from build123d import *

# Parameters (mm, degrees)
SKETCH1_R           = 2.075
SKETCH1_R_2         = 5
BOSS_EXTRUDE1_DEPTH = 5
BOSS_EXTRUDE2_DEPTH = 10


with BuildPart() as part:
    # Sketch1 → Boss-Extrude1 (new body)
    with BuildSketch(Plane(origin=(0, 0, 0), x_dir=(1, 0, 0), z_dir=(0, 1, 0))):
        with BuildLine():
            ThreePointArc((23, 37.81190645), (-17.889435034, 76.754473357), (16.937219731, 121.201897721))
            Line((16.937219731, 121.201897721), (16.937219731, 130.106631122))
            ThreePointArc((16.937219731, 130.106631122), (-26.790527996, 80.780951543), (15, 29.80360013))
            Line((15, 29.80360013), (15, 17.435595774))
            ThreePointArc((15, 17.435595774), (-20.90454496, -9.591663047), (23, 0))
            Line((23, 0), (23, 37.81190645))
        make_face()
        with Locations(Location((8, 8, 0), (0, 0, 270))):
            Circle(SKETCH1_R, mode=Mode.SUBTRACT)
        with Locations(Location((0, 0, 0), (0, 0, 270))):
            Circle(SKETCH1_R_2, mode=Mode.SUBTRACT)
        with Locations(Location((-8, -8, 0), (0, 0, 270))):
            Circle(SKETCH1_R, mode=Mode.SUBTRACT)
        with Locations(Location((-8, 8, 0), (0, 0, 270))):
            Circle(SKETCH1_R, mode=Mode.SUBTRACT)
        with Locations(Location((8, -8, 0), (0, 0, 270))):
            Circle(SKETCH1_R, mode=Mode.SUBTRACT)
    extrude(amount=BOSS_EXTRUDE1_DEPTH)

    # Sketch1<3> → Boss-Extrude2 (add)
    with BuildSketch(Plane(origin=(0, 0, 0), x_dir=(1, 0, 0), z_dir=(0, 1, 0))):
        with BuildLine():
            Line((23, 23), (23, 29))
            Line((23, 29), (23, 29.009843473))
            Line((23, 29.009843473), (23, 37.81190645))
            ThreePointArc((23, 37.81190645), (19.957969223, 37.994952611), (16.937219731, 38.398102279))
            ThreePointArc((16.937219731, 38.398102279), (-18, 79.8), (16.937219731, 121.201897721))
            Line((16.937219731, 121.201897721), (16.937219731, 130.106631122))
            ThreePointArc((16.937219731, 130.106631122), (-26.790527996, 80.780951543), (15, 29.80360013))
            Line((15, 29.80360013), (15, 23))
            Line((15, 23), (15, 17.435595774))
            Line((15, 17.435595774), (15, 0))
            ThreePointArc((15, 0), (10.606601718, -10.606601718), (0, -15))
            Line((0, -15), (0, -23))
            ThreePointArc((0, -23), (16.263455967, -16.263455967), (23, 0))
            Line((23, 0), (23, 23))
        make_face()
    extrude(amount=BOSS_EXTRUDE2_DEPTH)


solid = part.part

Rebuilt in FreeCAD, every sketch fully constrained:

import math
import FreeCAD as App
import Part
import Sketcher
from FreeCAD import Vector

doc = App.newDocument("Part")
body = doc.addObject("PartDesign::Body", "Body")

# Sketch on XZ plane
sketch1 = doc.addObject("Sketcher::SketchObject", "Sketch")
body.addObject(sketch1)
sketch1.AttachmentSupport = (doc.XZ_Plane, [""])
sketch1.MapMode = "FlatFace"
sketch1.addGeometry([
    Part.ArcOfCircle(Part.Circle(Vector(24, -79.8, 0), Vector(0, 0, 1), 42), math.radians(91.364314), math.radians(260.319062)),  # 0
    Part.LineSegment(Vector(16.93722, -121.201898, 0), Vector(16.93722, -130.106631, 0)),  # 1
    Part.ArcOfCircle(Part.Circle(Vector(24, -79.8, 0), Vector(0, 0, 1), 50.8), math.radians(100.204693), math.radians(262.008215)),  # 2
    Part.LineSegment(Vector(15, -29.8036, 0), Vector(15, -17.435596, 0)),  # 3
    Part.ArcOfCircle(Part.Circle(Vector(0, 0, 0), Vector(0, 0, 1), 23), math.radians(0), math.radians(310.705707)),  # 4
    Part.LineSegment(Vector(23, 0, 0), Vector(23, -37.811906, 0)),  # 5
    Part.Circle(Vector(-8, 8, 0), Vector(0, 0, 1), 2.075),  # 6
    Part.Circle(Vector(8, 8, 0), Vector(0, 0, 1), 2.075),  # 7
    Part.Circle(Vector(0, 0, 0), Vector(0, 0, 1), 5),  # 8
    Part.Circle(Vector(-8, -8, 0), Vector(0, 0, 1), 2.075),  # 9
    Part.Circle(Vector(8, -8, 0), Vector(0, 0, 1), 2.075),  # 10
], False)
sketch1.addConstraint([
    Sketcher.Constraint("Coincident", 0, 2, 1, 1),
    Sketcher.Constraint("Coincident", 1, 2, 2, 2),
    Sketcher.Constraint("Coincident", 2, 1, 3, 1),
    Sketcher.Constraint("Coincident", 3, 2, 4, 2),
    Sketcher.Constraint("Tangent", 4, 1, 5, 1),
    Sketcher.Constraint("Coincident", 5, 2, 0, 1),
    Sketcher.Constraint("Vertical", 1),
    Sketcher.Constraint("Vertical", 3),
    Sketcher.Constraint("Vertical", 5),
    Sketcher.Constraint("Coincident", 4, 3, -1, 1),
    Sketcher.Constraint("Coincident", 8, 3, -1, 1),
    Sketcher.Constraint("Coincident", 2, 3, 0, 3),
    Sketcher.Constraint("Equal", 6, 7),
    Sketcher.Constraint("Equal", 7, 9),
    Sketcher.Constraint("Equal", 9, 10),
    Sketcher.Constraint("Symmetric", 7, 3, 9, 3, -1, 1),
    Sketcher.Constraint("Symmetric", 6, 3, 10, 3, -1, 1),
    Sketcher.Constraint("Symmetric", 6, 3, 7, 3, -2),
    Sketcher.Constraint("Diameter", 8, 10.0),
    Sketcher.Constraint("Radius", 0, 42.0),
    Sketcher.Constraint("Radius", 4, 23.0),
    Sketcher.Constraint("Radius", 2, 50.8),
    Sketcher.Constraint("Diameter", 6, 4.15),
    Sketcher.Constraint("DistanceX", -1, 1, 0, 3, 24.0),
    Sketcher.Constraint("DistanceX", 6, 3, -1, 1, 8.0),
    Sketcher.Constraint("DistanceY", -1, 1, 6, 3, 8.0),
    Sketcher.Constraint("DistanceX", -1, 1, 2, 1, 15.0),
    Sketcher.Constraint("DistanceY", 0, 3, -1, 1, 79.8),
    Sketcher.Constraint("DistanceY", 1, 2, 1, 1, 8.904733),
])
pad1 = doc.addObject("PartDesign::Pad", "Pad")
body.addObject(pad1)
pad1.Profile = sketch1
pad1.Length = 5
pad1.Reversed = True

# Sketch on XZ plane
sketch2 = doc.addObject("Sketcher::SketchObject", "Sketch001")
body.addObject(sketch2)
sketch2.AttachmentSupport = (doc.XZ_Plane, [""])
sketch2.MapMode = "FlatFace"
sketch2.addGeometry([
    Part.ArcOfCircle(Part.Circle(Vector(24, -79.8, 0), Vector(0, 0, 1), 42), math.radians(91.364314), math.radians(99.680938)),  # 0
    Part.ArcOfCircle(Part.Circle(Vector(24, -79.8, 0), Vector(0, 0, 1), 42), math.radians(99.680938), math.radians(260.319062)),  # 1
    Part.LineSegment(Vector(16.93722, -121.201898, 0), Vector(16.93722, -130.106631, 0)),  # 2
    Part.ArcOfCircle(Part.Circle(Vector(24, -79.8, 0), Vector(0, 0, 1), 50.8), math.radians(100.204693), math.radians(262.008215)),  # 3
    Part.LineSegment(Vector(15, -29.8036, 0), Vector(15, 0, 0)),  # 4
    Part.ArcOfCircle(Part.Circle(Vector(0, 0, 0), Vector(0, 0, 1), 15), math.radians(0), math.radians(90)),  # 5
    Part.LineSegment(Vector(0, 15, 0), Vector(0, 23, 0)),  # 6
    Part.ArcOfCircle(Part.Circle(Vector(0, 0, 0), Vector(0, 0, 1), 23), math.radians(0), math.radians(90)),  # 7
    Part.LineSegment(Vector(23, 0, 0), Vector(23, -37.811906, 0)),  # 8
], False)
sketch2.addConstraint([
    Sketcher.Constraint("Tangent", 0, 2, 1, 1),
    Sketcher.Constraint("Coincident", 1, 2, 2, 1),
    Sketcher.Constraint("Coincident", 2, 2, 3, 2),
    Sketcher.Constraint("Coincident", 3, 1, 4, 1),
    Sketcher.Constraint("Tangent", 4, 2, 5, 1),
    Sketcher.Constraint("Coincident", 5, 2, 6, 1),
    Sketcher.Constraint("Coincident", 6, 2, 7, 2),
    Sketcher.Constraint("Tangent", 7, 1, 8, 1),
    Sketcher.Constraint("Coincident", 8, 2, 0, 1),
    Sketcher.Constraint("Vertical", 2),
    Sketcher.Constraint("Vertical", 4),
    Sketcher.Constraint("Vertical", 6),
    Sketcher.Constraint("Vertical", 8),
    Sketcher.Constraint("Coincident", 5, 3, -1, 1),
    Sketcher.Constraint("Coincident", 7, 3, -1, 1),
    Sketcher.Constraint("Coincident", 3, 3, 0, 3),
    Sketcher.Constraint("Equal", 0, 1),
    Sketcher.Constraint("PointOnObject", 5, 2, -2),
    Sketcher.Constraint("Vertical", 0, 2, 1, 2),
    Sketcher.Constraint("Radius", 0, 42.0),
    Sketcher.Constraint("Radius", 5, 15.0),
    Sketcher.Constraint("Radius", 7, 23.0),
    Sketcher.Constraint("Radius", 3, 50.8),
    Sketcher.Constraint("DistanceX", -1, 1, 0, 3, 24.0),
    Sketcher.Constraint("DistanceY", 0, 3, -1, 1, 79.8),
    Sketcher.Constraint("DistanceY", 2, 2, 2, 1, 8.904733),
])
pad2 = doc.addObject("PartDesign::Pad", "Pad001")
body.addObject(pad2)
pad2.Profile = sketch2
pad2.Length = 10
pad2.Reversed = True

doc.recompute()
